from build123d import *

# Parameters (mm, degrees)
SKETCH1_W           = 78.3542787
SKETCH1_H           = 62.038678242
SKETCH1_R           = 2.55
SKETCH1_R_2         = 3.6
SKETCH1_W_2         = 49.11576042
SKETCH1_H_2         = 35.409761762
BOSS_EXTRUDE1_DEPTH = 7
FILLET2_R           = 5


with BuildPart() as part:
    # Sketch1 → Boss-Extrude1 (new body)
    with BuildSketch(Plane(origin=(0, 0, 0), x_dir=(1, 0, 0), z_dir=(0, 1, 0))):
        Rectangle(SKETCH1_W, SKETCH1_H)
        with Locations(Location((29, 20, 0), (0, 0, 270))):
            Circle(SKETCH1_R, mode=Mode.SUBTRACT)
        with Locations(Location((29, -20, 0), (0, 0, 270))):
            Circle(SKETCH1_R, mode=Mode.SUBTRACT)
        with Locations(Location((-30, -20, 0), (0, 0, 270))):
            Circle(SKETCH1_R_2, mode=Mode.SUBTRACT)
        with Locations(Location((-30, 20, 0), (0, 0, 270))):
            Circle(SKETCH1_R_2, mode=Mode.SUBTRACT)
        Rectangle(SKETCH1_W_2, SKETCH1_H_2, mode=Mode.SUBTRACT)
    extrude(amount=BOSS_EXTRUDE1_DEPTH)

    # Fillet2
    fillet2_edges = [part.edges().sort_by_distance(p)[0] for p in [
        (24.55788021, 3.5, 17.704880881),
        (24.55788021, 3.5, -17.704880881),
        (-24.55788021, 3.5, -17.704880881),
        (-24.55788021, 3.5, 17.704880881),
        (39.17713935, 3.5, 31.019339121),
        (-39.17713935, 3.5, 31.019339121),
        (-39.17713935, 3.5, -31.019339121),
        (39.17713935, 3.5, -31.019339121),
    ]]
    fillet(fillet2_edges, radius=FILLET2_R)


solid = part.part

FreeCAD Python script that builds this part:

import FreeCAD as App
import Part
import Sketcher
from FreeCAD import Vector
Q = App.Units.Quantity


def edges_at(feature, points):
    """Names of the edges that pass closest to the given points."""
    edges = feature.Shape.Edges
    near = lambda p: min(range(len(edges)), key=lambda i: edges[i].distToShape(Part.Vertex(*p))[0])
    return sorted({f"Edge{near(p) + 1}" for p in points})

doc = App.newDocument("Part")
body = doc.addObject("PartDesign::Body", "Body")

# Sketch on XZ plane
sketch1 = body.newObject("Sketcher::SketchObject", "Sketch")
sketch1.AttachmentSupport = (doc.getObject("XZ_Plane"), [""])
sketch1.MapMode = "FlatFace"
sketch1.addGeometry(Part.LineSegment(Vector(-39.2, -31, 0), Vector(-39.2, 31, 0)), False)
sketch1.addGeometry(Part.LineSegment(Vector(-39.2, 31, 0), Vector(39.2, 31, 0)), False)
sketch1.addGeometry(Part.LineSegment(Vector(39.2, 31, 0), Vector(39.2, -31, 0)), False)
sketch1.addGeometry(Part.LineSegment(Vector(39.2, -31, 0), Vector(-39.2, -31, 0)), False)
sketch1.addGeometry(Part.Circle(Vector(-30, 20, 0), Vector(0, 0, 1), 3.6), False)
sketch1.addGeometry(Part.Circle(Vector(29, 20, 0), Vector(0, 0, 1), 2.5), False)
sketch1.addGeometry(Part.Circle(Vector(-30, -20, 0), Vector(0, 0, 1), 3.6), False)
sketch1.addGeometry(Part.LineSegment(Vector(24.6, 17.7, 0), Vector(-24.6, 17.7, 0)), False)
sketch1.addGeometry(Part.LineSegment(Vector(-24.6, 17.7, 0), Vector(-24.6, -17.7, 0)), False)
sketch1.addGeometry(Part.LineSegment(Vector(-24.6, -17.7, 0), Vector(24.6, -17.7, 0)), False)
sketch1.addGeometry(Part.LineSegment(Vector(24.6, -17.7, 0), Vector(24.6, 17.7, 0)), False)
sketch1.addGeometry(Part.Circle(Vector(29, -20, 0), Vector(0, 0, 1), 2.5), False)
sketch1.addConstraint(Sketcher.Constraint("Coincident", 0, 2, 1, 1))
sketch1.addConstraint(Sketcher.Constraint("Coincident", 1, 2, 2, 1))
sketch1.addConstraint(Sketcher.Constraint("Coincident", 2, 2, 3, 1))
sketch1.addConstraint(Sketcher.Constraint("Coincident", 3, 2, 0, 1))
sketch1.addConstraint(Sketcher.Constraint("Coincident", 7, 2, 8, 1))
sketch1.addConstraint(Sketcher.Constraint("Coincident", 8, 2, 9, 1))
sketch1.addConstraint(Sketcher.Constraint("Coincident", 9, 2, 10, 1))
sketch1.addConstraint(Sketcher.Constraint("Coincident", 10, 2, 7, 1))
sketch1.addConstraint(Sketcher.Constraint("Vertical", 0))
sketch1.addConstraint(Sketcher.Constraint("Horizontal", 1))
sketch1.addConstraint(Sketcher.Constraint("Vertical", 2))
sketch1.addConstraint(Sketcher.Constraint("Horizontal", 3))
sketch1.addConstraint(Sketcher.Constraint("Horizontal", 7))
sketch1.addConstraint(Sketcher.Constraint("Vertical", 8))
sketch1.addConstraint(Sketcher.Constraint("Horizontal", 9))
sketch1.addConstraint(Sketcher.Constraint("Vertical", 10))
sketch1.addConstraint(Sketcher.Constraint("Equal", 4, 6))
sketch1.addConstraint(Sketcher.Constraint("Equal", 5, 11))
sketch1.addConstraint(Sketcher.Constraint("Symmetric", 0, 2, 2, 2, -1, 1))
sketch1.addConstraint(Sketcher.Constraint("Symmetric", 7, 2, 9, 2, -1, 1))
sketch1.addConstraint(Sketcher.Constraint("Symmetric", 4, 3, 6, 3, -1))
sketch1.addConstraint(Sketcher.Constraint("Symmetric", 5, 3, 11, 3, -1))
sketch1.addConstraint(Sketcher.Constraint("Horizontal", 4, 3, 5, 3))
sketch1.addConstraint(Sketcher.Constraint("Diameter", 4, Q("7.2 mm")))
sketch1.addConstraint(Sketcher.Constraint("Diameter", 5, Q("5.1 mm")))
sketch1.addConstraint(Sketcher.Constraint("DistanceX", 4, 3, -1, 1, Q("30 mm")))
sketch1.addConstraint(Sketcher.Constraint("DistanceY", -1, 1, 4, 3, Q("20 mm")))
sketch1.addConstraint(Sketcher.Constraint("DistanceX", -1, 1, 5, 3, Q("29 mm")))
sketch1.addConstraint(Sketcher.Constraint("DistanceX", 1, 1, 1, 2, Q("78.354279 mm")))
sketch1.addConstraint(Sketcher.Constraint("DistanceX", 7, 2, 7, 1, Q("49.11576 mm")))
sketch1.addConstraint(Sketcher.Constraint("DistanceY", 0, 1, 0, 2, Q("62.038678 mm")))
sketch1.addConstraint(Sketcher.Constraint("DistanceY", 8, 2, 8, 1, Q("35.409762 mm")))
pad1 = body.newObject("PartDesign::Pad", "Pad")
pad1.Profile = sketch1
pad1.Length = 7
pad1.Reversed = True
doc.recompute()

fillet = body.newObject("PartDesign::Fillet", "Fillet")
fillet.Base = (pad1, edges_at(pad1, [
    (24.558, 3.5, 17.705),
    (24.558, 3.5, -17.705),
    (-24.558, 3.5, -17.705),
    (-24.558, 3.5, 17.705),
    (39.177, 3.5, 31.019),
    (-39.177, 3.5, 31.019),
    (-39.177, 3.5, -31.019),
    (39.177, 3.5, -31.019),
]))
fillet.Radius = 5

doc.recompute()
